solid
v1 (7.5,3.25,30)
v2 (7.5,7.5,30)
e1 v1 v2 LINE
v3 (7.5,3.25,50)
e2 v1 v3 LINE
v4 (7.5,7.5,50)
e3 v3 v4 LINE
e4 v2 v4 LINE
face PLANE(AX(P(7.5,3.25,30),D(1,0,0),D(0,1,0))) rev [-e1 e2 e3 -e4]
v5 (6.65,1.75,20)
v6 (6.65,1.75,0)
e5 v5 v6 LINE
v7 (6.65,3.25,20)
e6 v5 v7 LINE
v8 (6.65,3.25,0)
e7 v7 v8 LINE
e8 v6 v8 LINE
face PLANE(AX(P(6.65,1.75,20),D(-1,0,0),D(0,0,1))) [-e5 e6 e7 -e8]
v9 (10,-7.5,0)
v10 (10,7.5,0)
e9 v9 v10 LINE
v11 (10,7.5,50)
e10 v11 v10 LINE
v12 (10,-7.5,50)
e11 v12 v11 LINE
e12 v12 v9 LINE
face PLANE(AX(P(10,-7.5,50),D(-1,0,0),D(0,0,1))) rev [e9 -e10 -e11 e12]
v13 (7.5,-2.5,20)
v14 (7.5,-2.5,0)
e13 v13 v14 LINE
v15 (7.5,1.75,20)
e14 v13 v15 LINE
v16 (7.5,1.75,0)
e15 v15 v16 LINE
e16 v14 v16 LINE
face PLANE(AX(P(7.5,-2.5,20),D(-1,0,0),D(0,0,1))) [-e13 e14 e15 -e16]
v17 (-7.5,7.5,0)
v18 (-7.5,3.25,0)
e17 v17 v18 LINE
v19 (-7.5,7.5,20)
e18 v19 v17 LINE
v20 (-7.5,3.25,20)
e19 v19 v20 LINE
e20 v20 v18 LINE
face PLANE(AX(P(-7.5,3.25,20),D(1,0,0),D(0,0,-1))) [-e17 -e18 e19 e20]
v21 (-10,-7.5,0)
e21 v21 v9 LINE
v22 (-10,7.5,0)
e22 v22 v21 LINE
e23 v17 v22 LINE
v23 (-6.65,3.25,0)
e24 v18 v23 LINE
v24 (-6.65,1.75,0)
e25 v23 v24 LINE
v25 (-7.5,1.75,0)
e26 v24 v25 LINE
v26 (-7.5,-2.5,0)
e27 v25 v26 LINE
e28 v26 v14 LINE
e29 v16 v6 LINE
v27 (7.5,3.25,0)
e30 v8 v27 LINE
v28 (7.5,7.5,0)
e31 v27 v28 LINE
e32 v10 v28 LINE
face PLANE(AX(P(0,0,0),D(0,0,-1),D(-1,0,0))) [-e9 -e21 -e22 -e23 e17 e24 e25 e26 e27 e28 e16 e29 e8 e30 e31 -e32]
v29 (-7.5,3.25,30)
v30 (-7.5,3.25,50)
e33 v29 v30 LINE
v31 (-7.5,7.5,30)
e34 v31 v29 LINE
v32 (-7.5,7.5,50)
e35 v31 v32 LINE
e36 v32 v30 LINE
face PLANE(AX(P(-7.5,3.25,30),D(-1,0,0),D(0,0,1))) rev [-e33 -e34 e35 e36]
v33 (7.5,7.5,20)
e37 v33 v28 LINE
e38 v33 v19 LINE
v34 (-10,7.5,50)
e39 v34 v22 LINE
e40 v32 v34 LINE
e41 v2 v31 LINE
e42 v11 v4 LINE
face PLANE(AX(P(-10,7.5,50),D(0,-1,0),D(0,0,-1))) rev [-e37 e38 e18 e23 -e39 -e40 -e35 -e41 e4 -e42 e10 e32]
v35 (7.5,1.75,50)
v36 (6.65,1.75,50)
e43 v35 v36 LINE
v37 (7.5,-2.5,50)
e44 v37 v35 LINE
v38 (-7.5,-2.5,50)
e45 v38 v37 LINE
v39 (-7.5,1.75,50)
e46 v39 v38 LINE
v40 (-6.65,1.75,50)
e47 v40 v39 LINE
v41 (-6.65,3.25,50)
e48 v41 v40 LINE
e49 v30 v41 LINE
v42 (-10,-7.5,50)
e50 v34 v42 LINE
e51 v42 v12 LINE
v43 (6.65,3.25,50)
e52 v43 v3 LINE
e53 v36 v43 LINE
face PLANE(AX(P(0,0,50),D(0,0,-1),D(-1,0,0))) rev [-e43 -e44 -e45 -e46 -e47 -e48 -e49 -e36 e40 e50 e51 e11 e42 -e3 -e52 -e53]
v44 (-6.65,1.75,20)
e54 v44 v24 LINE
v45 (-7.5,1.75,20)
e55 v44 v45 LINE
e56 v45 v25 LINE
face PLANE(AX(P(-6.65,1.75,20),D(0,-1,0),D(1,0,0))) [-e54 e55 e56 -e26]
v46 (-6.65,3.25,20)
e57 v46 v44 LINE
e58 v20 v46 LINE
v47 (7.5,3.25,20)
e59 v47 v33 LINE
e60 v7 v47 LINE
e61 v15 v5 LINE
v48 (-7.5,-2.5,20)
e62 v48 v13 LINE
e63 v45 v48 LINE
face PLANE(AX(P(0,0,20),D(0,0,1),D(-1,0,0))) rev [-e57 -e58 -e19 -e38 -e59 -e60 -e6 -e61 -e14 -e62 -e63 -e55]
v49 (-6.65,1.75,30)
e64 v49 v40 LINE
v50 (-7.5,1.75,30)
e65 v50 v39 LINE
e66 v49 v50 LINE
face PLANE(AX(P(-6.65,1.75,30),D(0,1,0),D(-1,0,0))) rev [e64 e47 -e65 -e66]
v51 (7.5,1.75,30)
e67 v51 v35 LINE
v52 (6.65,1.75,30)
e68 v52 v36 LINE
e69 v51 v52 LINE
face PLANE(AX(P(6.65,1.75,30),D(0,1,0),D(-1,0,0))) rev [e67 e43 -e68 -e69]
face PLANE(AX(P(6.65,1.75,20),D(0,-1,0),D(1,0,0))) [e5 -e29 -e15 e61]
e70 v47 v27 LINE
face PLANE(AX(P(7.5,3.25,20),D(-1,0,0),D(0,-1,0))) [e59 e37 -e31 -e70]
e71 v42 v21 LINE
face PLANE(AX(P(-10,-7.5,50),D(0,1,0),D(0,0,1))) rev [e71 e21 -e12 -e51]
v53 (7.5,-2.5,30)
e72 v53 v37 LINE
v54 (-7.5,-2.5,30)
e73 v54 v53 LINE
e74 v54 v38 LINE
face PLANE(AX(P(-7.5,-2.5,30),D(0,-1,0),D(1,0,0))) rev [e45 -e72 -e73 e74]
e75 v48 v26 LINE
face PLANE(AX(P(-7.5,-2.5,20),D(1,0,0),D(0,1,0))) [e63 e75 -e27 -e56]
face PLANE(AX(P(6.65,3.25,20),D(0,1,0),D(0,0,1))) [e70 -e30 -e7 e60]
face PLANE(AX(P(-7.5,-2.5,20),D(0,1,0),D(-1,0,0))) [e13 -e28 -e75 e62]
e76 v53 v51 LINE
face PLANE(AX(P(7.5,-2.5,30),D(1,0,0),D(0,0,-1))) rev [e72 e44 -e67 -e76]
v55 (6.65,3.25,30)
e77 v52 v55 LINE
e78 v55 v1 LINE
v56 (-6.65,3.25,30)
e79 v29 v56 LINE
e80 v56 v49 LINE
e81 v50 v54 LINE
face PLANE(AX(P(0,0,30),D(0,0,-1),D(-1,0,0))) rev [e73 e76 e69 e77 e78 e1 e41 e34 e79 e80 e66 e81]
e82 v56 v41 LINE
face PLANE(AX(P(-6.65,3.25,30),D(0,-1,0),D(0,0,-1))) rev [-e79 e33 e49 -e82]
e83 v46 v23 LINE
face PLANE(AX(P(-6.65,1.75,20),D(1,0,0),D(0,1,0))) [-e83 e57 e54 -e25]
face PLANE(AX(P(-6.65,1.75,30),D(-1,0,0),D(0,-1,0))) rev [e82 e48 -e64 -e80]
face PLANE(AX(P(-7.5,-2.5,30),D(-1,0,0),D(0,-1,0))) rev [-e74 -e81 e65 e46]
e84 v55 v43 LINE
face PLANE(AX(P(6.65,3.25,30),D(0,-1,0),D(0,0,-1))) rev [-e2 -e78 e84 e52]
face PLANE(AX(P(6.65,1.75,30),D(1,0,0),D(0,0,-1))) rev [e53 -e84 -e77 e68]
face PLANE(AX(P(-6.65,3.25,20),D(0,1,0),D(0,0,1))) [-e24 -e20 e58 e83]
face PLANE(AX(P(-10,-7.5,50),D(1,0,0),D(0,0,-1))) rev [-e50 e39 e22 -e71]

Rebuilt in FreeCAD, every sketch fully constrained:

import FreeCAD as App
import Part
import Sketcher

doc = App.newDocument("Part")
body = doc.addObject("PartDesign::Body", "Body")

sketch1 = body.newObject("Sketcher::SketchObject", "Sketch")
sketch1.AttachmentSupport = (doc.getObject("XY_Plane"), [""])
sketch1.MapMode = "FlatFace"
sketch1.addGeometry(Part.LineSegment(App.Vector(-10, 7.5, 0), App.Vector(-10, -7.5, 0)), False)
sketch1.addGeometry(Part.LineSegment(App.Vector(-10, -7.5, 0), App.Vector(10, -7.5, 0)), False)
sketch1.addGeometry(Part.LineSegment(App.Vector(10, -7.5, 0), App.Vector(10, 7.5, 0)), False)
sketch1.addGeometry(Part.LineSegment(App.Vector(10, 7.5, 0), App.Vector(-10, 7.5, 0)), False)
sketch1.addConstraint(Sketcher.Constraint("Coincident", 0, 2, 1, 1))
sketch1.addConstraint(Sketcher.Constraint("Coincident", 1, 2, 2, 1))
sketch1.addConstraint(Sketcher.Constraint("Coincident", 2, 2, 3, 1))
sketch1.addConstraint(Sketcher.Constraint("Coincident", 3, 2, 0, 1))
sketch1.addConstraint(Sketcher.Constraint("Vertical", 0))
sketch1.addConstraint(Sketcher.Constraint("Horizontal", 1))
sketch1.addConstraint(Sketcher.Constraint("Vertical", 2))
sketch1.addConstraint(Sketcher.Constraint("Horizontal", 3))
sketch1.addConstraint(Sketcher.Constraint("Symmetric", 0, 2, 2, 2, -1, 1))
sketch1.addConstraint(Sketcher.Constraint("DistanceX", 1, 1, 1, 2, 20.0))
sketch1.addConstraint(Sketcher.Constraint("DistanceY", 0, 2, 0, 1, 15.0))
pad1 = body.newObject("PartDesign::Pad", "Pad")
pad1.Profile = sketch1
pad1.Length = 50

sketch2 = body.newObject("Sketcher::SketchObject", "Sketch001")
sketch2.AttachmentSupport = (doc.getObject("XY_Plane"), [""])
sketch2.MapMode = "FlatFace"
sketch2.AttachmentOffset = App.Placement(App.Vector(0, 0, 50), App.Rotation())
sketch2.addGeometry(Part.LineSegment(App.Vector(-7.5, -2.5, 0), App.Vector(7.5, -2.5, 0)), False)
sketch2.addGeometry(Part.LineSegment(App.Vector(7.5, -2.5, 0), App.Vector(7.5, 1.75, 0)), False)
sketch2.addGeometry(Part.LineSegment(App.Vector(7.5, 1.75, 0), App.Vector(6.65, 1.75, 0)), False)
sketch2.addGeometry(Part.LineSegment(App.Vector(6.65, 1.75, 0), App.Vector(6.65, 3.25, 0)), False)
sketch2.addGeometry(Part.LineSegment(App.Vector(6.65, 3.25, 0), App.Vector(7.5, 3.25, 0)), False)
sketch2.addGeometry(Part.LineSegment(App.Vector(7.5, 3.25, 0), App.Vector(7.5, 7.5, 0)), False)
sketch2.addGeometry(Part.LineSegment(App.Vector(7.5, 7.5, 0), App.Vector(-7.5, 7.5, 0)), False)
sketch2.addGeometry(Part.LineSegment(App.Vector(-7.5, 7.5, 0), App.Vector(-7.5, 3.25, 0)), False)
sketch2.addGeometry(Part.LineSegment(App.Vector(-7.5, 3.25, 0), App.Vector(-6.65, 3.25, 0)), False)
sketch2.addGeometry(Part.LineSegment(App.Vector(-6.65, 3.25, 0), App.Vector(-6.65, 1.75, 0)), False)
sketch2.addGeometry(Part.LineSegment(App.Vector(-6.65, 1.75, 0), App.Vector(-7.5, 1.75, 0)), False)
sketch2.addGeometry(Part.LineSegment(App.Vector(-7.5, 1.75, 0), App.Vector(-7.5, -2.5, 0)), False)
sketch2.addConstraint(Sketcher.Constraint("Coincident", 0, 2, 1, 1))
sketch2.addConstraint(Sketcher.Constraint("Coincident", 1, 2, 2, 1))
sketch2.addConstraint(Sketcher.Constraint("Coincident", 2, 2, 3, 1))
sketch2.addConstraint(Sketcher.Constraint("Coincident", 3, 2, 4, 1))
sketch2.addConstraint(Sketcher.Constraint("Coincident", 4, 2, 5, 1))
sketch2.addConstraint(Sketcher.Constraint("Coincident", 5, 2, 6, 1))
sketch2.addConstraint(Sketcher.Constraint("Coincident", 6, 2, 7, 1))
sketch2.addConstraint(Sketcher.Constraint("Coincident", 7, 2, 8, 1))
sketch2.addConstraint(Sketcher.Constraint("Coincident", 8, 2, 9, 1))
sketch2.addConstraint(Sketcher.Constraint("Coincident", 9, 2, 10, 1))
sketch2.addConstraint(Sketcher.Constraint("Coincident", 10, 2, 11, 1))
sketch2.addConstraint(Sketcher.Constraint("Coincident", 11, 2, 0, 1))
sketch2.addConstraint(Sketcher.Constraint("Horizontal", 0))
sketch2.addConstraint(Sketcher.Constraint("Vertical", 1))
sketch2.addConstraint(Sketcher.Constraint("Horizontal", 2))
sketch2.addConstraint(Sketcher.Constraint("Vertical", 3))
sketch2.addConstraint(Sketcher.Constraint("Horizontal", 4))
sketch2.addConstraint(Sketcher.Constraint("Vertical", 5))
sketch2.addConstraint(Sketcher.Constraint("Horizontal", 6))
sketch2.addConstraint(Sketcher.Constraint("Vertical", 7))
sketch2.addConstraint(Sketcher.Constraint("Horizontal", 8))
sketch2.addConstraint(Sketcher.Constraint("Vertical", 9))
sketch2.addConstraint(Sketcher.Constraint("Horizontal", 10))
sketch2.addConstraint(Sketcher.Constraint("Vertical", 11))
sketch2.addConstraint(Sketcher.Constraint("Symmetric", 4, 2, 7, 2, -2))
sketch2.addConstraint(Sketcher.Constraint("Symmetric", 2, 2, 9, 2, -2))
sketch2.addConstraint(Sketcher.Constraint("Vertical", 1, 2, 4, 2))
sketch2.addConstraint(Sketcher.Constraint("Vertical", 7, 2, 10, 2))
sketch2.addConstraint(Sketcher.Constraint("Equal", 1, 5))
sketch2.addConstraint(Sketcher.Constraint("DistanceX", 0, 1, 0, 2, 15.0))
sketch2.addConstraint(Sketcher.Constraint("DistanceY", 3, 1, 3, 2, 1.5))
sketch2.addConstraint(Sketcher.Constraint("DistanceY", 0, 2, 5, 2, 10.0))
sketch2.addConstraint(Sketcher.Constraint("DistanceX", 2, 2, 2, 1, 0.85))
sketch2.addConstraint(Sketcher.Constraint("DistanceY", 0, 2, -1, 1, 2.5))
pocket1 = body.newObject("PartDesign::Pocket", "Pocket")
pocket1.Profile = sketch2
pocket1.Length = 20
doc.recompute()

datumplane = body.newObject("PartDesign::Plane", "DatumPlane")
datumplane.AttachmentSupport = (doc.getObject("XY_Plane"), [""])
datumplane.MapMode = "FlatFace"
datumplane.AttachmentOffset = App.Placement(App.Vector(0, 0, 25), App.Rotation())
mirrored = body.newObject("PartDesign::Mirrored", "Mirrored")
mirrored.Originals = [pocket1]
mirrored.MirrorPlane = (datumplane, [""])
body.Tip = mirrored

doc.recompute()
